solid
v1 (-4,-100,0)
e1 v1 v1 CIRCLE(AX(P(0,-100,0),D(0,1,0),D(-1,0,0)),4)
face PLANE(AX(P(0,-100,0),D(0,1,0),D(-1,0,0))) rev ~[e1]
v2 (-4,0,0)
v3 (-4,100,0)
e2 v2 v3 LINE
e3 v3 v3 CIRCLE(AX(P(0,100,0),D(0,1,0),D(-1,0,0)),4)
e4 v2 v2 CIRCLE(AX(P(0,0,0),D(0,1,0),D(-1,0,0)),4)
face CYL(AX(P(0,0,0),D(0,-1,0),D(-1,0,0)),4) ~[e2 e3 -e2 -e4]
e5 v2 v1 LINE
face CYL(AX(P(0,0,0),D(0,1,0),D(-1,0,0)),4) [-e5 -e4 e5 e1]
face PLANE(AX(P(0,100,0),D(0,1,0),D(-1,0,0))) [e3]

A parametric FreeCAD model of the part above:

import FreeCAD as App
import Part
import Sketcher
from FreeCAD import Vector
Q = App.Units.Quantity

doc = App.newDocument("Part")
body = doc.addObject("PartDesign::Body", "Body")

# Sketch on XZ plane
sketch1 = doc.addObject("Sketcher::SketchObject", "Sketch")
body.addObject(sketch1)
sketch1.AttachmentSupport = (doc.XZ_Plane, [""])
sketch1.MapMode = "FlatFace"
sketch1.addGeometry(Part.Circle(Vector(0, 0, 0), Vector(0, 0, 1), 4), False)
sketch1.addConstraint(Sketcher.Constraint("Coincident", 0, 3, -1, 1))
sketch1.addConstraint(Sketcher.Constraint("Diameter", 0, Q("8 mm")))
pad1 = doc.addObject("PartDesign::Pad", "Pad")
body.addObject(pad1)
pad1.Profile = sketch1
pad1.Length = 200
pad1.Midplane = True

doc.recompute()
